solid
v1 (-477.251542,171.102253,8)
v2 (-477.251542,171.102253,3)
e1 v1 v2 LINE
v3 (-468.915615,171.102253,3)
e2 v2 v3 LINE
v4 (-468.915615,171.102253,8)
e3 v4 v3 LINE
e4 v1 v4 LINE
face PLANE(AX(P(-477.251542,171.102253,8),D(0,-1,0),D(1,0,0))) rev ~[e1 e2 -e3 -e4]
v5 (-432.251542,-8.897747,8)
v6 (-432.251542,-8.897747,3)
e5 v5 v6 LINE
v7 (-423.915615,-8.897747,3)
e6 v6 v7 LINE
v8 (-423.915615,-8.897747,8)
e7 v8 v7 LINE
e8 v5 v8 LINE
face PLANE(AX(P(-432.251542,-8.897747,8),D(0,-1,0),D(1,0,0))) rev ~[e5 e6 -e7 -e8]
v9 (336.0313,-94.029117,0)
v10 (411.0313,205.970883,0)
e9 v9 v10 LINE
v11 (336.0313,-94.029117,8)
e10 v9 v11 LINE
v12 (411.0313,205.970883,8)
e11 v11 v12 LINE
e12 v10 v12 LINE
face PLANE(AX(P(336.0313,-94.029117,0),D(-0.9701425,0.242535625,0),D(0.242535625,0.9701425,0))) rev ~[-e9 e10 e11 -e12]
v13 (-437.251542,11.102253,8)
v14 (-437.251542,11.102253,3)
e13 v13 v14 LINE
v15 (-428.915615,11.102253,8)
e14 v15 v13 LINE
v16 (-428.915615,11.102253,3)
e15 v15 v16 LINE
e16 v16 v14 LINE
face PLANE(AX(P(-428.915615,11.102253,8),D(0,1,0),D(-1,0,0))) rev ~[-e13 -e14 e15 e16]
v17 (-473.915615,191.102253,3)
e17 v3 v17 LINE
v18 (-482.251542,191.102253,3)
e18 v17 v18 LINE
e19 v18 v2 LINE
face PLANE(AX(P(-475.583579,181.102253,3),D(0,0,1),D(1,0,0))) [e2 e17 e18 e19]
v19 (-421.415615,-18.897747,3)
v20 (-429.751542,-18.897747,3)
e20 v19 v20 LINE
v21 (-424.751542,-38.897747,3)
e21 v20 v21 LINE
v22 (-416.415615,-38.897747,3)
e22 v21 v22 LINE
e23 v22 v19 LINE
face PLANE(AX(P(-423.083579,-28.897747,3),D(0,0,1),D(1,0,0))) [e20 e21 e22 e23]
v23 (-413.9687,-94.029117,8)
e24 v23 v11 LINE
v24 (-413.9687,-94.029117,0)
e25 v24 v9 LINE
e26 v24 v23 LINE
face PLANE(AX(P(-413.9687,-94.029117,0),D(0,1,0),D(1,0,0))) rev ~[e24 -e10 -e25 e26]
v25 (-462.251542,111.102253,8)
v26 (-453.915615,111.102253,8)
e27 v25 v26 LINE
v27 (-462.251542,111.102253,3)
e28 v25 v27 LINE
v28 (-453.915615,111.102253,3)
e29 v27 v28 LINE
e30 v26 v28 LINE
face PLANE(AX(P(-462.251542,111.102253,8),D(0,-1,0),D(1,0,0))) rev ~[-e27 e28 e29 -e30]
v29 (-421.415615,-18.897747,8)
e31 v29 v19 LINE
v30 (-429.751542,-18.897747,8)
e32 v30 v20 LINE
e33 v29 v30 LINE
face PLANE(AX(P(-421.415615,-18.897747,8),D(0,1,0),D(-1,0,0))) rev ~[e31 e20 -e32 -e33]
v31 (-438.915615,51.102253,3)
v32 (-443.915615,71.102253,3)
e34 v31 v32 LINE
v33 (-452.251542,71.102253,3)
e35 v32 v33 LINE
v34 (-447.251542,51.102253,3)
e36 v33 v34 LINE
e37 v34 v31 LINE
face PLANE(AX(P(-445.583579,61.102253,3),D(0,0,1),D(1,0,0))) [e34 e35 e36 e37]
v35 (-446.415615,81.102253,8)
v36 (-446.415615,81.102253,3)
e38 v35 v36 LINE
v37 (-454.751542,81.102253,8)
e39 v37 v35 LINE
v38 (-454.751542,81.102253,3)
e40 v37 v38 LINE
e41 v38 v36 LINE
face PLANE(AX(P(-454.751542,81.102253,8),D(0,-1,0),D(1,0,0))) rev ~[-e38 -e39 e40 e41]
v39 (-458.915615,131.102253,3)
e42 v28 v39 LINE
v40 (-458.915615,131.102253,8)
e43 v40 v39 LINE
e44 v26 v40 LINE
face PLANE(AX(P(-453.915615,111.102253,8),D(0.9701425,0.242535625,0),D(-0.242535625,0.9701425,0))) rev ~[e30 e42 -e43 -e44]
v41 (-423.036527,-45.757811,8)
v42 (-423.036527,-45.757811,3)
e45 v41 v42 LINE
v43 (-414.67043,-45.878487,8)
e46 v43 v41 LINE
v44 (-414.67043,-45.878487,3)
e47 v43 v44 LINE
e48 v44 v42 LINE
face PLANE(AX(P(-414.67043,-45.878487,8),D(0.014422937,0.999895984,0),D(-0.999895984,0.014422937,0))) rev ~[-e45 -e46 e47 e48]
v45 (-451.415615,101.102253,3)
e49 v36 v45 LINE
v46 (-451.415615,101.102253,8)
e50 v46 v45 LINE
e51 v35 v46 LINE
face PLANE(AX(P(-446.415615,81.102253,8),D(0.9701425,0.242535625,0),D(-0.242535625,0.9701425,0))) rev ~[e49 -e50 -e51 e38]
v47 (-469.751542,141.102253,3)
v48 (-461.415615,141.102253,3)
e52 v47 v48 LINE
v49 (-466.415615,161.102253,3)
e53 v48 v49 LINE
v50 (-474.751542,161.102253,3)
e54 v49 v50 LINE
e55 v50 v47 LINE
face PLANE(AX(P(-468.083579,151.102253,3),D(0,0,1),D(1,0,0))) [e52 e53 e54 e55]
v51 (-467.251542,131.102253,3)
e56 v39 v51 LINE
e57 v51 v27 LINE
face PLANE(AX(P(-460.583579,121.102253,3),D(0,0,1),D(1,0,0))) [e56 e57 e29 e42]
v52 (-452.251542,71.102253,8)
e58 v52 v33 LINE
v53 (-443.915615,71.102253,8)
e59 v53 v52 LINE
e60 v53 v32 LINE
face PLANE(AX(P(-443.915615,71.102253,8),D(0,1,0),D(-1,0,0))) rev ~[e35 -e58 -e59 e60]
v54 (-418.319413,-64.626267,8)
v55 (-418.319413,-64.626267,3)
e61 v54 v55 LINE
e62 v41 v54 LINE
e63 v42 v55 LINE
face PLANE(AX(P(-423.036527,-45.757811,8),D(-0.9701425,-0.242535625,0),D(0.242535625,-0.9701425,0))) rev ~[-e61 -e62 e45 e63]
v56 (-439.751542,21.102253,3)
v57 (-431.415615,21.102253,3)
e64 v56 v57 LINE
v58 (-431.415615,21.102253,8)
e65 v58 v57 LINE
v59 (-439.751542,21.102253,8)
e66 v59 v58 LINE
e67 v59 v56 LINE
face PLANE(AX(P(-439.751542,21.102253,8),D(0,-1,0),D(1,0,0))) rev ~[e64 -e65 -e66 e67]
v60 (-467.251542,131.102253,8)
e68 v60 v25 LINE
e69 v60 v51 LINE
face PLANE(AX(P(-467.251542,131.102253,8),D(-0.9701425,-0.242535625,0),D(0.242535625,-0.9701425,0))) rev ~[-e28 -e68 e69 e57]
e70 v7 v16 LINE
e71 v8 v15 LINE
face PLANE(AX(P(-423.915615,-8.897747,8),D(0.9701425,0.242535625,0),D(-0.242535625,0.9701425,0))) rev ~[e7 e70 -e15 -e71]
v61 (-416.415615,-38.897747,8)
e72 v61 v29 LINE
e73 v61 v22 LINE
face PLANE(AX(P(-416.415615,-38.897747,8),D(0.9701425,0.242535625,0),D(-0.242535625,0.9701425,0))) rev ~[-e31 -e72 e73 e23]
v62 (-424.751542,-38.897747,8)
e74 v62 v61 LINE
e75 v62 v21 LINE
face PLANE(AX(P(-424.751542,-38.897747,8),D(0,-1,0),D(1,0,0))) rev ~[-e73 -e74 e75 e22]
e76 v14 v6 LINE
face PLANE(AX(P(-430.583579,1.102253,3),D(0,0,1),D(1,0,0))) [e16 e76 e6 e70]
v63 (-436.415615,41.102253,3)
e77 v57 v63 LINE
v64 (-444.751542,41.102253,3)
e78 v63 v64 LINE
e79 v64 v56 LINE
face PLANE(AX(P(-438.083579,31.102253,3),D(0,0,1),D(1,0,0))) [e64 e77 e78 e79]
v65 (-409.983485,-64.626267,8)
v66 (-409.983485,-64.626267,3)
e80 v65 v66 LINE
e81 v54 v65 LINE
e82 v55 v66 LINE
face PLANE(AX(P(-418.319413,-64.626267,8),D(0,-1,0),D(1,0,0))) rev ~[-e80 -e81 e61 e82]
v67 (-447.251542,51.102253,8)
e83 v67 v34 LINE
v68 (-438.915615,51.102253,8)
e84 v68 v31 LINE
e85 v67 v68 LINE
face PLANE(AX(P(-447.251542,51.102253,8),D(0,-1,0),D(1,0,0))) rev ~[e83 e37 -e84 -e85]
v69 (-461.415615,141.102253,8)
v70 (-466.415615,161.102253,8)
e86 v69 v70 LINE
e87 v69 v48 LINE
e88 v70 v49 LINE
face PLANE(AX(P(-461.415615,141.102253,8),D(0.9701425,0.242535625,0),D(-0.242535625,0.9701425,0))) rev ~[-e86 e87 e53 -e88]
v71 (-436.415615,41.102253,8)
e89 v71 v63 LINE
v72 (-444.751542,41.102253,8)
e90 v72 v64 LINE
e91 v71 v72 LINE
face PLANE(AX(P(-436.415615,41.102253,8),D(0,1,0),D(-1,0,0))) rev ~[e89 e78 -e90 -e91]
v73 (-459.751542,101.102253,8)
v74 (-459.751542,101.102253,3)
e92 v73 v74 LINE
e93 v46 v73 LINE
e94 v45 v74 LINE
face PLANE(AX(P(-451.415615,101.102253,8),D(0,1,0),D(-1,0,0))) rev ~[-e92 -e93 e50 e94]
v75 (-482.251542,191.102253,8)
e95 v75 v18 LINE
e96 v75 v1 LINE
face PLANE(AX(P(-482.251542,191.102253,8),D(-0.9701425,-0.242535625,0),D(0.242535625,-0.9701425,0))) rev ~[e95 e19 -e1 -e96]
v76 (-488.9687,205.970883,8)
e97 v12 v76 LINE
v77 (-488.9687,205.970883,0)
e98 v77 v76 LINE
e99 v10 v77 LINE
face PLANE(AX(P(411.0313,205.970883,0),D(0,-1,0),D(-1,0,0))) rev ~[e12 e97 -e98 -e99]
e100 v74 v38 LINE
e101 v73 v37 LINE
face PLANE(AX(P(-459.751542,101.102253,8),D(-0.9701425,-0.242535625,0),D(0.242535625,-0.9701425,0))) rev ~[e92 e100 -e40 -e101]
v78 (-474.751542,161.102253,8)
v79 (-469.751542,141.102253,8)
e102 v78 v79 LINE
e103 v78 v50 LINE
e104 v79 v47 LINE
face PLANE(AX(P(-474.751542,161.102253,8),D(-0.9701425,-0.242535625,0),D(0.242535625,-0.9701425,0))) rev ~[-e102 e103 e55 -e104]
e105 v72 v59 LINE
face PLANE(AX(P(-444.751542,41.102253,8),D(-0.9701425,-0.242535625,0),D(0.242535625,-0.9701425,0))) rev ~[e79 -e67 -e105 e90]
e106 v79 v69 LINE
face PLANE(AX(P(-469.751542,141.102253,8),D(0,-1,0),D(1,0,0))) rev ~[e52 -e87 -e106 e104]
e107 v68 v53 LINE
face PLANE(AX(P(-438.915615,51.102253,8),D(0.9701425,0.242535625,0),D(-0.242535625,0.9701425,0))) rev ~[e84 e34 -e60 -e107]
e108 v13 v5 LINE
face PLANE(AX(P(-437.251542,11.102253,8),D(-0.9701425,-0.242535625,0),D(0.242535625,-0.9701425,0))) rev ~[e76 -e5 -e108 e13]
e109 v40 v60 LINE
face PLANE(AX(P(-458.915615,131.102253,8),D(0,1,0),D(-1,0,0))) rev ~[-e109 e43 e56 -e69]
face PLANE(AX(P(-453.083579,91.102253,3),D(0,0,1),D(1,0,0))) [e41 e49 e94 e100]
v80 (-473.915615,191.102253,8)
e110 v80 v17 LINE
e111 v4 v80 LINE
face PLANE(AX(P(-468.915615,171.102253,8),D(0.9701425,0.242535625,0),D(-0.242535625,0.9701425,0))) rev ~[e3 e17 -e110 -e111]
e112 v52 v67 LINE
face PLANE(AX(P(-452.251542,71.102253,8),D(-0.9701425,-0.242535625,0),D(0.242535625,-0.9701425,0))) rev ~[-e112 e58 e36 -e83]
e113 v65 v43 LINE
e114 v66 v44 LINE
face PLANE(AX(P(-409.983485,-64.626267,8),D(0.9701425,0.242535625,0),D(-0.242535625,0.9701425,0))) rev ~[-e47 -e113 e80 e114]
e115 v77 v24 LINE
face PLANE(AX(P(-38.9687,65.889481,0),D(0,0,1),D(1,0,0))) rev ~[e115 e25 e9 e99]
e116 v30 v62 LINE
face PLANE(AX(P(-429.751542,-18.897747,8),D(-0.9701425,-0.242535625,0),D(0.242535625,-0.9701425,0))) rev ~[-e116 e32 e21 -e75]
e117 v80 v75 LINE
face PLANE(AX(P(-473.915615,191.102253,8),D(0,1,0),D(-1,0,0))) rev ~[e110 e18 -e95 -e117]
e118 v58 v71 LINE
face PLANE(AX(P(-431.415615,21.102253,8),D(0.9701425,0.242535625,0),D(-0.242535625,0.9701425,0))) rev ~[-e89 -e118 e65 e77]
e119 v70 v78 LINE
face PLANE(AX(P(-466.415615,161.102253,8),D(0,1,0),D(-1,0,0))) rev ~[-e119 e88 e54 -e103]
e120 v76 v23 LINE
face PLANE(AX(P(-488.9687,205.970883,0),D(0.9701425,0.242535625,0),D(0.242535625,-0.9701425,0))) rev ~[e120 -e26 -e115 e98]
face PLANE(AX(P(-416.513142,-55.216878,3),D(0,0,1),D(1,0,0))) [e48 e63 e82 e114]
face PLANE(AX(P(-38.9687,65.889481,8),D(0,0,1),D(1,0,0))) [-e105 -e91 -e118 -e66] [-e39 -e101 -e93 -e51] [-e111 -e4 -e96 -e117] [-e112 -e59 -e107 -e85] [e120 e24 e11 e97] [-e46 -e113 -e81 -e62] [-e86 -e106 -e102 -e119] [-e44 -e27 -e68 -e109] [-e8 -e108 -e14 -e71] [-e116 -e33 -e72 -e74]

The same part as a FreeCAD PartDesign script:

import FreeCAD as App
import Part
import Sketcher
Q = App.Units.Quantity

doc = App.newDocument("Part")
params = doc.addObject("Spreadsheet::Sheet", "Params")
for row, (alias, value) in enumerate([
    ("sketch1_width", "750 mm"),
    ("sketch1_width2", "900 mm"),
    ("pad1_length", "8 mm"),
    ("pocket1_length", "5 mm"),
], start=1):
    params.set(f"A{row}", alias)
    params.set(f"B{row}", "=" + value)
    params.setAlias(f"B{row}", alias)

body = doc.addObject("PartDesign::Body", "Body")

sketch1 = body.newObject("Sketcher::SketchObject", "Sketch")
sketch1.AttachmentSupport = (doc.getObject("XY_Plane"), [""])
sketch1.MapMode = "FlatFace"
sketch1.addGeometry(Part.LineSegment(App.Vector(-489, 206, 0), App.Vector(-414, -94, 0)), False)
sketch1.addGeometry(Part.LineSegment(App.Vector(-414, -94, 0), App.Vector(336, -94, 0)), False)
sketch1.addGeometry(Part.LineSegment(App.Vector(336, -94, 0), App.Vector(411, 206, 0)), False)
sketch1.addGeometry(Part.LineSegment(App.Vector(411, 206, 0), App.Vector(-489, 206, 0)), False)
sketch1.addConstraint(Sketcher.Constraint("Coincident", 0, 2, 1, 1))
sketch1.addConstraint(Sketcher.Constraint("Coincident", 1, 2, 2, 1))
sketch1.addConstraint(Sketcher.Constraint("Coincident", 2, 2, 3, 1))
sketch1.addConstraint(Sketcher.Constraint("Coincident", 3, 2, 0, 1))
sketch1.addConstraint(Sketcher.Constraint("Horizontal", 1))
sketch1.addConstraint(Sketcher.Constraint("Horizontal", 3))
sketch1.addConstraint(Sketcher.Constraint("Equal", 0, 2))
sketch1.addConstraint(Sketcher.Constraint("DistanceX", 1, 1, 1, 2, Q("750 mm")))
sketch1.addConstraint(Sketcher.Constraint("DistanceX", 3, 2, 3, 1, Q("900 mm")))
sketch1.addConstraint(Sketcher.Constraint("DistanceY", 1, 2, 2, 2, Q("300 mm")))
sketch1.addConstraint(Sketcher.Constraint("DistanceX", 0, 2, -1, 1, Q("413.9687 mm")))
sketch1.addConstraint(Sketcher.Constraint("DistanceY", 0, 2, -1, 1, Q("94.029117 mm")))
sketch1.setExpression("Constraints[7]", "Params.sketch1_width")
sketch1.setExpression("Constraints[8]", "Params.sketch1_width2")
pad1 = body.newObject("PartDesign::Pad", "Pad")
pad1.Profile = sketch1
pad1.setExpression("Length", "Params.pad1_length")

sketch2 = body.newObject("Sketcher::SketchObject", "Sketch001")
sketch2.AttachmentSupport = (doc.getObject("XY_Plane"), [""])
sketch2.MapMode = "FlatFace"
sketch2.AttachmentOffset = App.Placement(App.Vector(0, 0, 8), App.Rotation())
sketch2.addGeometry(Part.LineSegment(App.Vector(-469, 171, 0), App.Vector(-474, 191, 0)), False)
sketch2.addGeometry(Part.LineSegment(App.Vector(-474, 191, 0), App.Vector(-482, 191, 0)), False)
sketch2.addGeometry(Part.LineSegment(App.Vector(-482, 191, 0), App.Vector(-477, 171, 0)), False)
sketch2.addGeometry(Part.LineSegment(App.Vector(-477, 171, 0), App.Vector(-469, 171, 0)), False)
sketch2.addGeometry(Part.LineSegment(App.Vector(-461, 141, 0), App.Vector(-466, 161, 0)), False)
sketch2.addGeometry(Part.LineSegment(App.Vector(-466, 161, 0), App.Vector(-475, 161, 0)), False)
sketch2.addGeometry(Part.LineSegment(App.Vector(-475, 161, 0), App.Vector(-470, 141, 0)), False)
sketch2.addGeometry(Part.LineSegment(App.Vector(-470, 141, 0), App.Vector(-461, 141, 0)), False)
sketch2.addGeometry(Part.LineSegment(App.Vector(-454, 111, 0), App.Vector(-459, 131, 0)), False)
sketch2.addGeometry(Part.LineSegment(App.Vector(-459, 131, 0), App.Vector(-467, 131, 0)), False)
sketch2.addGeometry(Part.LineSegment(App.Vector(-467, 131, 0), App.Vector(-462, 111, 0)), False)
sketch2.addGeometry(Part.LineSegment(App.Vector(-462, 111, 0), App.Vector(-454, 111, 0)), False)
sketch2.addGeometry(Part.LineSegment(App.Vector(-460, 101, 0), App.Vector(-455, 81, 0)), False)
sketch2.addGeometry(Part.LineSegment(App.Vector(-455, 81, 0), App.Vector(-446, 81, 0)), False)
sketch2.addGeometry(Part.LineSegment(App.Vector(-446, 81, 0), App.Vector(-451, 101, 0)), False)
sketch2.addGeometry(Part.LineSegment(App.Vector(-451, 101, 0), App.Vector(-460, 101, 0)), False)
sketch2.addGeometry(Part.LineSegment(App.Vector(-452, 71, 0), App.Vector(-447, 51, 0)), False)
sketch2.addGeometry(Part.LineSegment(App.Vector(-447, 51, 0), App.Vector(-439, 51, 0)), False)
sketch2.addGeometry(Part.LineSegment(App.Vector(-439, 51, 0), App.Vector(-444, 71, 0)), False)
sketch2.addGeometry(Part.LineSegment(App.Vector(-444, 71, 0), App.Vector(-452, 71, 0)), False)
sketch2.addGeometry(Part.LineSegment(App.Vector(-445, 41, 0), App.Vector(-440, 21, 0)), False)
sketch2.addGeometry(Part.LineSegment(App.Vector(-440, 21, 0), App.Vector(-431, 21, 0)), False)
sketch2.addGeometry(Part.LineSegment(App.Vector(-431, 21, 0), App.Vector(-436, 41, 0)), False)
sketch2.addGeometry(Part.LineSegment(App.Vector(-436, 41, 0), App.Vector(-445, 41, 0)), False)
sketch2.addGeometry(Part.LineSegment(App.Vector(-437, 11, 0), App.Vector(-432, -9, 0)), False)
sketch2.addGeometry(Part.LineSegment(App.Vector(-432, -9, 0), App.Vector(-424, -9, 0)), False)
sketch2.addGeometry(Part.LineSegment(App.Vector(-424, -9, 0), App.Vector(-429, 11, 0)), False)
sketch2.addGeometry(Part.LineSegment(App.Vector(-429, 11, 0), App.Vector(-437, 11, 0)), False)
sketch2.addGeometry(Part.LineSegment(App.Vector(-430, -19, 0), App.Vector(-425, -39, 0)), False)
sketch2.addGeometry(Part.LineSegment(App.Vector(-425, -39, 0), App.Vector(-416, -39, 0)), False)
sketch2.addGeometry(Part.LineSegment(App.Vector(-416, -39, 0), App.Vector(-421, -19, 0)), False)
sketch2.addGeometry(Part.LineSegment(App.Vector(-421, -19, 0), App.Vector(-430, -19, 0)), False)
sketch2.addGeometry(Part.LineSegment(App.Vector(-423, -46, 0), App.Vector(-418, -65, 0)), False)
sketch2.addGeometry(Part.LineSegment(App.Vector(-418, -65, 0), App.Vector(-410, -65, 0)), False)
sketch2.addGeometry(Part.LineSegment(App.Vector(-410, -65, 0), App.Vector(-415, -46, 0)), False)
sketch2.addGeometry(Part.LineSegment(App.Vector(-415, -46, 0), App.Vector(-423, -46, 0)), False)
sketch2.addConstraint(Sketcher.Constraint("Coincident", 0, 2, 1, 1))
sketch2.addConstraint(Sketcher.Constraint("Coincident", 1, 2, 2, 1))
sketch2.addConstraint(Sketcher.Constraint("Coincident", 2, 2, 3, 1))
sketch2.addConstraint(Sketcher.Constraint("Coincident", 3, 2, 0, 1))
sketch2.addConstraint(Sketcher.Constraint("Coincident", 4, 2, 5, 1))
sketch2.addConstraint(Sketcher.Constraint("Coincident", 5, 2, 6, 1))
sketch2.addConstraint(Sketcher.Constraint("Coincident", 6, 2, 7, 1))
sketch2.addConstraint(Sketcher.Constraint("Coincident", 7, 2, 4, 1))
sketch2.addConstraint(Sketcher.Constraint("Coincident", 8, 2, 9, 1))
sketch2.addConstraint(Sketcher.Constraint("Coincident", 9, 2, 10, 1))
sketch2.addConstraint(Sketcher.Constraint("Coincident", 10, 2, 11, 1))
sketch2.addConstraint(Sketcher.Constraint("Coincident", 11, 2, 8, 1))
sketch2.addConstraint(Sketcher.Constraint("Coincident", 12, 2, 13, 1))
sketch2.addConstraint(Sketcher.Constraint("Coincident", 13, 2, 14, 1))
sketch2.addConstraint(Sketcher.Constraint("Coincident", 14, 2, 15, 1))
sketch2.addConstraint(Sketcher.Constraint("Coincident", 15, 2, 12, 1))
sketch2.addConstraint(Sketcher.Constraint("Coincident", 16, 2, 17, 1))
sketch2.addConstraint(Sketcher.Constraint("Coincident", 17, 2, 18, 1))
sketch2.addConstraint(Sketcher.Constraint("Coincident", 18, 2, 19, 1))
sketch2.addConstraint(Sketcher.Constraint("Coincident", 19, 2, 16, 1))
sketch2.addConstraint(Sketcher.Constraint("Coincident", 20, 2, 21, 1))
sketch2.addConstraint(Sketcher.Constraint("Coincident", 21, 2, 22, 1))
sketch2.addConstraint(Sketcher.Constraint("Coincident", 22, 2, 23, 1))
sketch2.addConstraint(Sketcher.Constraint("Coincident", 23, 2, 20, 1))
sketch2.addConstraint(Sketcher.Constraint("Coincident", 24, 2, 25, 1))
sketch2.addConstraint(Sketcher.Constraint("Coincident", 25, 2, 26, 1))
sketch2.addConstraint(Sketcher.Constraint("Coincident", 26, 2, 27, 1))
sketch2.addConstraint(Sketcher.Constraint("Coincident", 27, 2, 24, 1))
sketch2.addConstraint(Sketcher.Constraint("Coincident", 28, 2, 29, 1))
sketch2.addConstraint(Sketcher.Constraint("Coincident", 29, 2, 30, 1))
sketch2.addConstraint(Sketcher.Constraint("Coincident", 30, 2, 31, 1))
sketch2.addConstraint(Sketcher.Constraint("Coincident", 31, 2, 28, 1))
sketch2.addConstraint(Sketcher.Constraint("Coincident", 32, 2, 33, 1))
sketch2.addConstraint(Sketcher.Constraint("Coincident", 33, 2, 34, 1))
sketch2.addConstraint(Sketcher.Constraint("Coincident", 34, 2, 35, 1))
sketch2.addConstraint(Sketcher.Constraint("Coincident", 35, 2, 32, 1))
sketch2.addConstraint(Sketcher.Constraint("Horizontal", 1))
sketch2.addConstraint(Sketcher.Constraint("Horizontal", 3))
sketch2.addConstraint(Sketcher.Constraint("Horizontal", 5))
sketch2.addConstraint(Sketcher.Constraint("Horizontal", 7))
sketch2.addConstraint(Sketcher.Constraint("Horizontal", 9))
sketch2.addConstraint(Sketcher.Constraint("Horizontal", 11))
sketch2.addConstraint(Sketcher.Constraint("Horizontal", 13))
sketch2.addConstraint(Sketcher.Constraint("Horizontal", 15))
sketch2.addConstraint(Sketcher.Constraint("Horizontal", 17))
sketch2.addConstraint(Sketcher.Constraint("Horizontal", 19))
sketch2.addConstraint(Sketcher.Constraint("Horizontal", 21))
sketch2.addConstraint(Sketcher.Constraint("Horizontal", 23))
sketch2.addConstraint(Sketcher.Constraint("Horizontal", 25))
sketch2.addConstraint(Sketcher.Constraint("Horizontal", 27))
sketch2.addConstraint(Sketcher.Constraint("Horizontal", 29))
sketch2.addConstraint(Sketcher.Constraint("Horizontal", 31))
sketch2.addConstraint(Sketcher.Constraint("Horizontal", 33))
sketch2.addConstraint(Sketcher.Constraint("Parallel", 0, 2))
sketch2.addConstraint(Sketcher.Constraint("Parallel", 2, 4))
sketch2.addConstraint(Sketcher.Constraint("Parallel", 4, 6))
sketch2.addConstraint(Sketcher.Constraint("Parallel", 6, 8))
sketch2.addConstraint(Sketcher.Constraint("Parallel", 8, 10))
sketch2.addConstraint(Sketcher.Constraint("Parallel", 10, 12))
sketch2.addConstraint(Sketcher.Constraint("Parallel", 12, 14))
sketch2.addConstraint(Sketcher.Constraint("Parallel", 14, 16))
sketch2.addConstraint(Sketcher.Constraint("Parallel", 16, 18))
sketch2.addConstraint(Sketcher.Constraint("Parallel", 18, 20))
sketch2.addConstraint(Sketcher.Constraint("Parallel", 20, 22))
sketch2.addConstraint(Sketcher.Constraint("Parallel", 22, 24))
sketch2.addConstraint(Sketcher.Constraint("Parallel", 24, 26))
sketch2.addConstraint(Sketcher.Constraint("Parallel", 26, 28))
sketch2.addConstraint(Sketcher.Constraint("Parallel", 28, 30))
sketch2.addConstraint(Sketcher.Constraint("Parallel", 30, 32))
sketch2.addConstraint(Sketcher.Constraint("Parallel", 32, 34))
sketch2.addConstraint(Sketcher.Constraint("Equal", 3, 5))
sketch2.addConstraint(Sketcher.Constraint("Equal", 7, 9))
sketch2.addConstraint(Sketcher.Constraint("Equal", 11, 13))
sketch2.addConstraint(Sketcher.Constraint("Equal", 15, 17))
sketch2.addConstraint(Sketcher.Constraint("Equal", 19, 21))
sketch2.addConstraint(Sketcher.Constraint("Equal", 23, 25))
sketch2.addConstraint(Sketcher.Constraint("Equal", 27, 29))
sketch2.addConstraint(Sketcher.Constraint("Equal", 31, 33))
sketch2.addConstraint(Sketcher.Constraint("Equal", 2, 4))
sketch2.addConstraint(Sketcher.Constraint("Equal", 6, 8))
sketch2.addConstraint(Sketcher.Constraint("Equal", 10, 12))
sketch2.addConstraint(Sketcher.Constraint("Equal", 14, 16))
sketch2.addConstraint(Sketcher.Constraint("Equal", 18, 20))
sketch2.addConstraint(Sketcher.Constraint("Equal", 22, 24))
sketch2.addConstraint(Sketcher.Constraint("Equal", 26, 28))
sketch2.addConstraint(Sketcher.Constraint("DistanceY", 2, 2, 0, 2, Q("20 mm")))
sketch2.addConstraint(Sketcher.Constraint("DistanceX", 1, 2, 2, 2, Q("5 mm")))
sketch2.addConstraint(Sketcher.Constraint("DistanceY", 4, 2, 3, 2, Q("10 mm")))
sketch2.addConstraint(Sketcher.Constraint("DistanceY", 8, 2, 7, 2, Q("10 mm")))
sketch2.addConstraint(Sketcher.Constraint("DistanceX", 3, 2, 8, 2, Q("10 mm")))
sketch2.addConstraint(Sketcher.Constraint("DistanceY", 12, 2, 11, 2, Q("30 mm")))
sketch2.addConstraint(Sketcher.Constraint("DistanceY", 16, 2, 13, 2, Q("30 mm")))
sketch2.addConstraint(Sketcher.Constraint("DistanceY", 20, 2, 17, 2, Q("30 mm")))
sketch2.addConstraint(Sketcher.Constraint("DistanceY", 24, 2, 21, 2, Q("30 mm")))
sketch2.addConstraint(Sketcher.Constraint("DistanceY", 28, 2, 25, 2, Q("30 mm")))
sketch2.addConstraint(Sketcher.Constraint("DistanceX", 3, 2, 4, 2, Q("2.5 mm")))
sketch2.addConstraint(Sketcher.Constraint("DistanceX", 10, 2, 12, 2, Q("7.5 mm")))
sketch2.addConstraint(Sketcher.Constraint("DistanceX", 12, 2, 16, 2, Q("7.5 mm")))
sketch2.addConstraint(Sketcher.Constraint("DistanceX", 16, 2, 20, 2, Q("7.5 mm")))
sketch2.addConstraint(Sketcher.Constraint("DistanceX", 20, 2, 24, 2, Q("7.5 mm")))
sketch2.addConstraint(Sketcher.Constraint("DistanceX", 24, 2, 28, 2, Q("7.5 mm")))
sketch2.addConstraint(Sketcher.Constraint("Distance", 32, Q("19.449159 mm")))
sketch2.addConstraint(Sketcher.Constraint("Distance", 34, Q("19.324769 mm")))
sketch2.addConstraint(Sketcher.Constraint("DistanceX", 1, 2, 1, 1, Q("8.335927 mm")))
sketch2.addConstraint(Sketcher.Constraint("DistanceX", 34, 2, -1, 1, Q("414.67043 mm")))
sketch2.addConstraint(Sketcher.Constraint("DistanceY", 35, 2, -1, 1, Q("45.757811 mm")))
sketch2.addConstraint(Sketcher.Constraint("DistanceY", 32, 2, 29, 2, Q("25.728519 mm")))
sketch2.addConstraint(Sketcher.Constraint("DistanceX", 28, 2, 32, 2, Q("6.43213 mm")))
pocket1 = body.newObject("PartDesign::Pocket", "Pocket")
pocket1.Profile = sketch2
pocket1.setExpression("Length", "Params.pocket1_length")

doc.recompute()
